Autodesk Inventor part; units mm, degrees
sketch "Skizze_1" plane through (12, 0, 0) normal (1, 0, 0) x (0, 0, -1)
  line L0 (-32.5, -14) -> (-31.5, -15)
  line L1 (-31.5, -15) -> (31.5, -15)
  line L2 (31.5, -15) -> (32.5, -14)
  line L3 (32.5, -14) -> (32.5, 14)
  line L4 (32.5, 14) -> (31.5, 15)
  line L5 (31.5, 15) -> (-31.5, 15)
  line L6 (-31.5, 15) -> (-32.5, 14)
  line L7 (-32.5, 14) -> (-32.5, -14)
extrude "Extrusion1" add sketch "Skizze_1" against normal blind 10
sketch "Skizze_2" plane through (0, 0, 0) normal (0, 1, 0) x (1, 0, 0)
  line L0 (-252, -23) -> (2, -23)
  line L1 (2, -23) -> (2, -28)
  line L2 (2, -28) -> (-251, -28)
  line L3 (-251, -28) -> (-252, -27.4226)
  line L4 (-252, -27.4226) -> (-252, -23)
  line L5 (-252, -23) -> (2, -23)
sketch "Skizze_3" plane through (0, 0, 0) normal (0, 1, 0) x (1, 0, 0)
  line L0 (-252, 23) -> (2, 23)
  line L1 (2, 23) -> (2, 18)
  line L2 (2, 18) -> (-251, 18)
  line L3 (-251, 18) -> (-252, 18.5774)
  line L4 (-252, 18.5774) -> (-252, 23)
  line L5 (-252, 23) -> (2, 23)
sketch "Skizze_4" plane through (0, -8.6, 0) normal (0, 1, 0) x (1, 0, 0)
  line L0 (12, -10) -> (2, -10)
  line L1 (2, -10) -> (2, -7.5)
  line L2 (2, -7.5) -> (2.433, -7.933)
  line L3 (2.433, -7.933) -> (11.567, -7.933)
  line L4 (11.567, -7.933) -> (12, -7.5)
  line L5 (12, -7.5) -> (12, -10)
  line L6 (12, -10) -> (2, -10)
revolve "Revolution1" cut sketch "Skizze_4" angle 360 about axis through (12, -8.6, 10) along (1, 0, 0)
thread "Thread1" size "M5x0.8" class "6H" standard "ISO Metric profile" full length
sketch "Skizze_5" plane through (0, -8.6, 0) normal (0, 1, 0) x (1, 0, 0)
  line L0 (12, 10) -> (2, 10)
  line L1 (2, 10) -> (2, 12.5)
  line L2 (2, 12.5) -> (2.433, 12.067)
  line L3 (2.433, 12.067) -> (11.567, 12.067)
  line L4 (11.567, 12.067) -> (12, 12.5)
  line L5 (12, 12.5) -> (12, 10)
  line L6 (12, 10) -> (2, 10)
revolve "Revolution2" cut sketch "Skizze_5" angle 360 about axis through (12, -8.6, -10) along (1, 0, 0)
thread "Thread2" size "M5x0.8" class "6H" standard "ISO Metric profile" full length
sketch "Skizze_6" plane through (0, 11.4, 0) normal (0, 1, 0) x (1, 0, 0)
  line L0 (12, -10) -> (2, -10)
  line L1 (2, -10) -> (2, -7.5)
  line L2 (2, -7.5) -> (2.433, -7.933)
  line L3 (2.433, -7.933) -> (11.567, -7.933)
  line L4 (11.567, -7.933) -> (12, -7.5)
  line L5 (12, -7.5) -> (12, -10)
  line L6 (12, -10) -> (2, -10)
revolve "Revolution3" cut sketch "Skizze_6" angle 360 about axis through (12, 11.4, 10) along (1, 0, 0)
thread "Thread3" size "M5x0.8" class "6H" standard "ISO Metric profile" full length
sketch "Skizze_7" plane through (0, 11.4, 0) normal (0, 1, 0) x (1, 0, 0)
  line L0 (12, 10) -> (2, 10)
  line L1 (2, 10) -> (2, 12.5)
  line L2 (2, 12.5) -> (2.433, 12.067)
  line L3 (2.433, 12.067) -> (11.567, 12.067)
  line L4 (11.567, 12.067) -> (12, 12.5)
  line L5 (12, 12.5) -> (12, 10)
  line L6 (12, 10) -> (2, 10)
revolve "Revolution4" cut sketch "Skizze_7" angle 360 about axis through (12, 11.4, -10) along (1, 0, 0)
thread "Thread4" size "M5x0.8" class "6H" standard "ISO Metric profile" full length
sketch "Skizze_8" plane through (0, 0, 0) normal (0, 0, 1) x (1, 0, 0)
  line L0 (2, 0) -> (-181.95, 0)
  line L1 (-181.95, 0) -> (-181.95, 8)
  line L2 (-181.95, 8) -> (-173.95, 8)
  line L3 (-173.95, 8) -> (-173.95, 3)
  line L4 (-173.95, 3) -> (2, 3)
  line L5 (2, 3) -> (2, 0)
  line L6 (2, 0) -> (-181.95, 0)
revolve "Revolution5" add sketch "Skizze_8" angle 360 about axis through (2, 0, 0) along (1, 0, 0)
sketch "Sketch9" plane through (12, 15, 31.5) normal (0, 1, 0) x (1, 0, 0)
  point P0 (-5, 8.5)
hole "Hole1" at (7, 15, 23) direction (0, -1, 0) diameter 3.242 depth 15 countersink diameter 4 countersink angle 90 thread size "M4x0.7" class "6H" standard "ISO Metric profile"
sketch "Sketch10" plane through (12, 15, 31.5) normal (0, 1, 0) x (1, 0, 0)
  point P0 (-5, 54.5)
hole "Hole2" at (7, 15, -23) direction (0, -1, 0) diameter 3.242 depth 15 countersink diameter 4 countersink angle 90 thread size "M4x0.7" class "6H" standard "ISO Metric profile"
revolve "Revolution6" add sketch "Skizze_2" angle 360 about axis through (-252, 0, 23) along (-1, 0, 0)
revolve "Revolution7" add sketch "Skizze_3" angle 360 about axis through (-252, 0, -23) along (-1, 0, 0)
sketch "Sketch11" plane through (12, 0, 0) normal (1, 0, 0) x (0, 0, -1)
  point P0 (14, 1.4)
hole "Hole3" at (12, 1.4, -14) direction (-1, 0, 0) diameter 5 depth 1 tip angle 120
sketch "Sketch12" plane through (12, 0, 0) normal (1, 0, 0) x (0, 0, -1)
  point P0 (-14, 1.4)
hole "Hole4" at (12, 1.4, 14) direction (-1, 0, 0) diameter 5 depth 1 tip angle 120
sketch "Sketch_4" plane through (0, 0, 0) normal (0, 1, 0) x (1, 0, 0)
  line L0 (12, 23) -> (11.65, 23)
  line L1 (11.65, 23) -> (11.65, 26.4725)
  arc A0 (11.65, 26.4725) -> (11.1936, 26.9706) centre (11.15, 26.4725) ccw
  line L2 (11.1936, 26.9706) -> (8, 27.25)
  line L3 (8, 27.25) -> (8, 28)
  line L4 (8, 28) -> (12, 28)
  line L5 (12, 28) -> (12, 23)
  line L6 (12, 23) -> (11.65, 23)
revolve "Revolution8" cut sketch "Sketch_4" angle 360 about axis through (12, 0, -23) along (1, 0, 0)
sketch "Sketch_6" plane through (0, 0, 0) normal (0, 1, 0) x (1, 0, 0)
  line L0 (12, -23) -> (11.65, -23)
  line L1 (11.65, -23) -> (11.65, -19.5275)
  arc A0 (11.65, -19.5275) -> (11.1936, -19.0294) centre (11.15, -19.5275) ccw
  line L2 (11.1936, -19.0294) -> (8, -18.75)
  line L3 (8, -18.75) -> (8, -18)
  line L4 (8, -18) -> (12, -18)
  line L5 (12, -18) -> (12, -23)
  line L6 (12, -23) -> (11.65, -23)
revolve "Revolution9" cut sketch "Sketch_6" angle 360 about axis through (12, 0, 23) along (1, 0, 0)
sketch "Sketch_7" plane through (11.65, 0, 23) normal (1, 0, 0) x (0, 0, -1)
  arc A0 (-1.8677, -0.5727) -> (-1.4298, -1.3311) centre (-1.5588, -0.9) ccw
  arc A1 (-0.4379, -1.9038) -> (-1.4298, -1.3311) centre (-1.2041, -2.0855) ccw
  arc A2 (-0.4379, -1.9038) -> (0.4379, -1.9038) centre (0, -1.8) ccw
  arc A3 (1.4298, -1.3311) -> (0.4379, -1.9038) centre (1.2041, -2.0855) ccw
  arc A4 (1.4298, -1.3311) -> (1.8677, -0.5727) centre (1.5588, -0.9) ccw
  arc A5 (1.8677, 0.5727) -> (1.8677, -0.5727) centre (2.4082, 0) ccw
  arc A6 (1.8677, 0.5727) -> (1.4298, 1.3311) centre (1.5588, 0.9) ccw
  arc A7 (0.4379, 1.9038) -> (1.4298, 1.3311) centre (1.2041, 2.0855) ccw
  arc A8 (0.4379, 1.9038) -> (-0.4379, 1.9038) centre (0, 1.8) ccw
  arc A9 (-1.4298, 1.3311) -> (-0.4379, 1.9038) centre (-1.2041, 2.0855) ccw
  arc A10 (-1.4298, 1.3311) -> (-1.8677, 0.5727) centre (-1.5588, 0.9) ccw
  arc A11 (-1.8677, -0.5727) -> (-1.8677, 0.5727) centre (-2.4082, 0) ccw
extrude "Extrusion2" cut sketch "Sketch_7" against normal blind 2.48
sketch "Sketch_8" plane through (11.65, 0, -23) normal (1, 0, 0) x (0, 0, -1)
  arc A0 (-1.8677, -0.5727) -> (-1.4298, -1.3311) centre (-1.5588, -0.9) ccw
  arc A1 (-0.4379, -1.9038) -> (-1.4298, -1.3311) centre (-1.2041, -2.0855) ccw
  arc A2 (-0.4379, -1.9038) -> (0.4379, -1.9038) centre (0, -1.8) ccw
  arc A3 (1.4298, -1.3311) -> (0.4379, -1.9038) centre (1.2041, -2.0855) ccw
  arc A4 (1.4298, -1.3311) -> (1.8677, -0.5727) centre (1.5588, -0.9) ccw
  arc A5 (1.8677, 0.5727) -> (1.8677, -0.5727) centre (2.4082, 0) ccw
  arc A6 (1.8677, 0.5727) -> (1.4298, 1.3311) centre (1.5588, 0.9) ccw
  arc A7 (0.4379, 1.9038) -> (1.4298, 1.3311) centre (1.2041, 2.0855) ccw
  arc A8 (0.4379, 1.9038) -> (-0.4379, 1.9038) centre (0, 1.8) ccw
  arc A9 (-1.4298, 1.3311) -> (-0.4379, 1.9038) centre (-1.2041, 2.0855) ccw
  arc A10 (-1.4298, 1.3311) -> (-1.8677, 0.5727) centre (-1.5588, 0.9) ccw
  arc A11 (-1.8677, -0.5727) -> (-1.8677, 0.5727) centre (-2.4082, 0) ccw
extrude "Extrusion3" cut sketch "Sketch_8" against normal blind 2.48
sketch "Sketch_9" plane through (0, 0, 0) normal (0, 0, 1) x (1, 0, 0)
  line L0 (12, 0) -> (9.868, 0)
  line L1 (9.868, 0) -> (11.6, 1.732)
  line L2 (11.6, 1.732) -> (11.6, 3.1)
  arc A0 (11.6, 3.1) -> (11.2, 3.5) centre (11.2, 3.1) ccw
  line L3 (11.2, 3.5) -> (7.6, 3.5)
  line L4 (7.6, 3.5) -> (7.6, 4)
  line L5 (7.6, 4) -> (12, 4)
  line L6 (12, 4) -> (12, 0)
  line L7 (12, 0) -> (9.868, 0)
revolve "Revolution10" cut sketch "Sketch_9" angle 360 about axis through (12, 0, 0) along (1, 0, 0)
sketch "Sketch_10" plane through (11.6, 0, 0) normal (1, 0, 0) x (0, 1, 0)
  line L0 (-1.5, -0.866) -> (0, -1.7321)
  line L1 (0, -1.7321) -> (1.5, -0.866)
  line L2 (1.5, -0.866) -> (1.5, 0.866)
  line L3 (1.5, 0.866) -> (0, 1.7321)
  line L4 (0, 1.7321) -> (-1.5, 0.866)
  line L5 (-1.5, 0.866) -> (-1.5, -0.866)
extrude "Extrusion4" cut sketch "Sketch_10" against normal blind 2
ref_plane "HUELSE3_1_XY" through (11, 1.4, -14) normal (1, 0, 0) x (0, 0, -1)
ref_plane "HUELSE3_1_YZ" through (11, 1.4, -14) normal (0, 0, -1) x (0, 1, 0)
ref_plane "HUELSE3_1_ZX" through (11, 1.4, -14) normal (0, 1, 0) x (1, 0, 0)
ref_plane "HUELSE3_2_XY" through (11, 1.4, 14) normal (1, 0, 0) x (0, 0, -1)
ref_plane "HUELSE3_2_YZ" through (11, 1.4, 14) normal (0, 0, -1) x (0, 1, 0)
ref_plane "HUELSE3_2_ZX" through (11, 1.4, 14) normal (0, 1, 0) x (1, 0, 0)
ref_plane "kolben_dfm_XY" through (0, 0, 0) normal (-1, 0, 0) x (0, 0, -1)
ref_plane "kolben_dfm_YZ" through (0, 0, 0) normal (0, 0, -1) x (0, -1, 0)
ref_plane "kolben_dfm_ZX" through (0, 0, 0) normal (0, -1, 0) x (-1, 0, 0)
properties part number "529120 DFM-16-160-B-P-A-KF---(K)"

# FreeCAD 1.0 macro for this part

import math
import FreeCAD as App
import Part
import Sketcher
from FreeCAD import Vector
Q = App.Units.Quantity


def add_polygon(sketch, points):
    """Adds a closed chain of lines whose ends are joined by coincident constraints."""
    first, n = sketch.GeometryCount, len(points)
    for a, b in zip(points, points[1:] + points[:1]):
        sketch.addGeometry(Part.LineSegment(App.Vector(*a, 0), App.Vector(*b, 0)), False)
    for i in range(n):
        sketch.addConstraint(Sketcher.Constraint("Coincident", first + i, 2, first + (i + 1) % n, 1))

doc = App.newDocument("Part")
params = doc.addObject("Spreadsheet::Sheet", "Params")
for row, (alias, value) in enumerate([
    ("sketch1_width", "28 mm"),
    ("sketch1_height", "63 mm"),
    ("pad1_length", "10 mm"),
    ("sketch2_width", "10 mm"),
    ("sketch2_height", "2.5 mm"),
    ("groove_angle", "360 deg"),
    ("sketch3_width", "10 mm"),
    ("sketch3_height", "2.5 mm"),
    ("groove2_angle", "360 deg"),
    ("sketch4_width", "10 mm"),
    ("sketch4_height", "2.5 mm"),
    ("groove3_angle", "360 deg"),
    ("sketch5_width", "10 mm"),
    ("sketch5_height", "2.5 mm"),
    ("groove4_angle", "360 deg"),
    ("sketch6_width", "8 mm"),
    ("sketch6_height", "3 mm"),
    ("sketch6_width2", "183.95 mm"),
    ("revolution_angle", "360 deg"),
    ("hole_diameter", "3.242 mm"),
    ("hole_depth", "15 mm"),
    ("hole_csink_diameter", "4 mm"),
    ("hole2_diameter", "3.242 mm"),
    ("hole2_depth", "15 mm"),
    ("hole2_csink_diameter", "4 mm"),
    ("sketch9_width", "254 mm"),
    ("sketch9_width2", "253 mm"),
    ("sketch9_height", "5 mm"),
    ("revolution2_angle", "360 deg"),
    ("sketch10_width", "254 mm"),
    ("sketch10_width2", "253 mm"),
    ("sketch10_height", "5 mm"),
    ("revolution3_angle", "360 deg"),
    ("sketch11_diameter", "5 mm"),
    ("hole3_diameter", "5 mm"),
    ("hole3_depth", "1 mm"),
    ("sketch12_diameter", "5 mm"),
    ("hole4_diameter", "5 mm"),
    ("hole4_depth", "1 mm"),
    ("sketch13_radius", "0.5 mm"),
    ("sketch13_width", "4 mm"),
    ("sketch13_height", "5 mm"),
    ("sketch13_width2", "0.35 mm"),
    ("sketch13_height2", "0.75 mm"),
    ("groove5_angle", "360 deg"),
    ("sketch14_radius", "0.5 mm"),
    ("sketch14_width", "4 mm"),
    ("sketch14_height", "5 mm"),
    ("sketch14_width2", "0.35 mm"),
    ("sketch14_height2", "0.75 mm"),
    ("groove6_angle", "360 deg"),
    ("sketch15_radius", "0.45 mm"),
    ("pocket1_length", "2.48 mm"),
    ("sketch16_radius", "0.45 mm"),
    ("pocket2_length", "2.48 mm"),
    ("sketch17_radius", "0.4 mm"),
    ("sketch17_height", "4 mm"),
    ("sketch17_width", "4.4 mm"),
    ("sketch17_width2", "3.6 mm"),
    ("sketch17_height2", "0.5 mm"),
    ("groove7_angle", "360 deg"),
    ("pocket3_length", "2 mm"),
], start=1):
    params.set(f"A{row}", alias)
    params.set(f"B{row}", "=" + value)
    params.setAlias(f"B{row}", alias)

body = doc.addObject("PartDesign::Body", "Body")

# Sketch on YZ plane
sketch1 = body.newObject("Sketcher::SketchObject", "Sketch")
sketch1.AttachmentSupport = (doc.getObject("YZ_Plane"), [""])
sketch1.MapMode = "FlatFace"
sketch1.AttachmentOffset = App.Placement(Vector(0, 0, 12), App.Rotation())
add_polygon(sketch1, [(14, 32.5), (-14, 32.5), (-15, 31.5), (-15, -31.5), (-14, -32.5), (14, -32.5), (15, -31.5), (15, 31.5)])  # lines 0-7
sketch1.addConstraint([
    Sketcher.Constraint("Horizontal", 0),
    Sketcher.Constraint("Vertical", 2),
    Sketcher.Constraint("Horizontal", 4),
    Sketcher.Constraint("Vertical", 6),
    Sketcher.Constraint("Symmetric", 0, 2, 4, 2, -1, 1),
    Sketcher.Constraint("Symmetric", 1, 2, 5, 2, -1, 1),
    Sketcher.Constraint("Perpendicular", 1, 3),
    Sketcher.Constraint("Perpendicular", 5, 7),
    Sketcher.Constraint("Horizontal", 2, 2, 5, 2),
    Sketcher.Constraint("Horizontal", 1, 2, 6, 2),
    Sketcher.Constraint("Vertical", 0, 2, 3, 2),
    Sketcher.Constraint("DistanceX", 0, 2, 0, 1, Q("28 mm")),
    Sketcher.Constraint("DistanceY", 2, 2, 2, 1, Q("63 mm")),
    Sketcher.Constraint("DistanceX", 1, 2, -1, 1, Q("15 mm")),
])
sketch1.setExpression("Constraints[19]", "Params.sketch1_width")
sketch1.setExpression("Constraints[20]", "Params.sketch1_height")
pad1 = body.newObject("PartDesign::Pad", "Pad")
pad1.Profile = sketch1
pad1.setExpression("Length", "Params.pad1_length")
pad1.Reversed = True

# Sketch on XZ plane
sketch2 = body.newObject("Sketcher::SketchObject", "Sketch001")
sketch2.AttachmentSupport = (doc.getObject("XZ_Plane"), [""])
sketch2.MapMode = "FlatFace"
sketch2.AttachmentOffset = App.Placement(Vector(0, 0, 8.6), App.Rotation())
add_polygon(sketch2, [(2, 10), (12, 10), (12, 7.5), (11.6, 7.9), (2.4, 7.9), (2, 7.5)])  # lines 0-5
sketch2.addGeometry(Part.LineSegment(Vector(2, 10, 0), Vector(12, 10, 0)), True)  # axis
sketch2.addConstraint([
    Sketcher.Constraint("Horizontal", 0),
    Sketcher.Constraint("Vertical", 1),
    Sketcher.Constraint("Horizontal", 3),
    Sketcher.Constraint("Vertical", 5),
    Sketcher.Constraint("Horizontal", 6),
    Sketcher.Constraint("Coincident", 6, 1, 5, 2),
    Sketcher.Constraint("Perpendicular", 2, 4),
    Sketcher.Constraint("Horizontal", 1, 2, 4, 2),
    Sketcher.Constraint("Vertical", 1, 2, 6, 2),
    Sketcher.Constraint("Equal", 2, 4),
    Sketcher.Constraint("DistanceX", 0, 1, 0, 2, Q("10 mm")),
    Sketcher.Constraint("DistanceY", 1, 2, 1, 1, Q("2.5 mm")),
    Sketcher.Constraint("DistanceX", -1, 1, 0, 2, Q("12 mm")),
    Sketcher.Constraint("DistanceY", -1, 1, 0, 2, Q("10 mm")),
    Sketcher.Constraint("DistanceX", 3, 2, 3, 1, Q("9.134 mm")),
])
sketch2.setExpression("Constraints[16]", "Params.sketch2_width")
sketch2.setExpression("Constraints[17]", "Params.sketch2_height")
groove = body.newObject("PartDesign::Groove", "Groove")
groove.Profile = sketch2
groove.ReferenceAxis = (sketch2, ["Axis0"])
groove.setExpression("Angle", "Params.groove_angle")

# Sketch on XZ plane
sketch3 = body.newObject("Sketcher::SketchObject", "Sketch002")
sketch3.AttachmentSupport = (doc.getObject("XZ_Plane"), [""])
sketch3.MapMode = "FlatFace"
sketch3.AttachmentOffset = App.Placement(Vector(0, 0, 8.6), App.Rotation())
add_polygon(sketch3, [(2, -10), (12, -10), (12, -12.5), (11.6, -12.1), (2.4, -12.1), (2, -12.5)])  # lines 0-5
sketch3.addGeometry(Part.LineSegment(Vector(2, -10, 0), Vector(12, -10, 0)), True)  # axis
sketch3.addConstraint([
    Sketcher.Constraint("Horizontal", 0),
    Sketcher.Constraint("Vertical", 1),
    Sketcher.Constraint("Horizontal", 3),
    Sketcher.Constraint("Vertical", 5),
    Sketcher.Constraint("Horizontal", 6),
    Sketcher.Constraint("Coincident", 6, 1, 5, 2),
    Sketcher.Constraint("Perpendicular", 2, 4),
    Sketcher.Constraint("Horizontal", 1, 2, 4, 2),
    Sketcher.Constraint("Vertical", 1, 2, 6, 2),
    Sketcher.Constraint("Equal", 2, 4),
    Sketcher.Constraint("DistanceX", 0, 1, 0, 2, Q("10 mm")),
    Sketcher.Constraint("DistanceY", 1, 2, 1, 1, Q("2.5 mm")),
    Sketcher.Constraint("DistanceX", -1, 1, 0, 2, Q("12 mm")),
    Sketcher.Constraint("DistanceY", 0, 2, -1, 1, Q("10 mm")),
    Sketcher.Constraint("DistanceX", 3, 2, 3, 1, Q("9.134 mm")),
])
sketch3.setExpression("Constraints[16]", "Params.sketch3_width")
sketch3.setExpression("Constraints[17]", "Params.sketch3_height")
groove2 = body.newObject("PartDesign::Groove", "Groove001")
groove2.Profile = sketch3
groove2.ReferenceAxis = (sketch3, ["Axis0"])
groove2.setExpression("Angle", "Params.groove2_angle")

# Sketch on XZ plane
sketch4 = body.newObject("Sketcher::SketchObject", "Sketch003")
sketch4.AttachmentSupport = (doc.getObject("XZ_Plane"), [""])
sketch4.MapMode = "FlatFace"
sketch4.AttachmentOffset = App.Placement(Vector(0, 0, -11.4), App.Rotation())
add_polygon(sketch4, [(2, 10), (12, 10), (12, 7.5), (11.6, 7.9), (2.4, 7.9), (2, 7.5)])  # lines 0-5
sketch4.addGeometry(Part.LineSegment(Vector(2, 10, 0), Vector(12, 10, 0)), True)  # axis
sketch4.addConstraint([
    Sketcher.Constraint("Horizontal", 0),
    Sketcher.Constraint("Vertical", 1),
    Sketcher.Constraint("Horizontal", 3),
    Sketcher.Constraint("Vertical", 5),
    Sketcher.Constraint("Horizontal", 6),
    Sketcher.Constraint("Coincident", 6, 1, 5, 2),
    Sketcher.Constraint("Perpendicular", 2, 4),
    Sketcher.Constraint("Horizontal", 1, 2, 4, 2),
    Sketcher.Constraint("Vertical", 1, 2, 6, 2),
    Sketcher.Constraint("Equal", 2, 4),
    Sketcher.Constraint("DistanceX", 0, 1, 0, 2, Q("10 mm")),
    Sketcher.Constraint("DistanceY", 1, 2, 1, 1, Q("2.5 mm")),
    Sketcher.Constraint("DistanceX", -1, 1, 0, 2, Q("12 mm")),
    Sketcher.Constraint("DistanceY", -1, 1, 0, 2, Q("10 mm")),
    Sketcher.Constraint("DistanceX", 3, 2, 3, 1, Q("9.134 mm")),
])
sketch4.setExpression("Constraints[16]", "Params.sketch4_width")
sketch4.setExpression("Constraints[17]", "Params.sketch4_height")
groove3 = body.newObject("PartDesign::Groove", "Groove002")
groove3.Profile = sketch4
groove3.ReferenceAxis = (sketch4, ["Axis0"])
groove3.setExpression("Angle", "Params.groove3_angle")

# Sketch on XZ plane
sketch5 = body.newObject("Sketcher::SketchObject", "Sketch004")
sketch5.AttachmentSupport = (doc.getObject("XZ_Plane"), [""])
sketch5.MapMode = "FlatFace"
sketch5.AttachmentOffset = App.Placement(Vector(0, 0, -11.4), App.Rotation())
add_polygon(sketch5, [(2, -10), (12, -10), (12, -12.5), (11.6, -12.1), (2.4, -12.1), (2, -12.5)])  # lines 0-5
sketch5.addGeometry(Part.LineSegment(Vector(2, -10, 0), Vector(12, -10, 0)), True)  # axis
sketch5.addConstraint([
    Sketcher.Constraint("Horizontal", 0),
    Sketcher.Constraint("Vertical", 1),
    Sketcher.Constraint("Horizontal", 3),
    Sketcher.Constraint("Vertical", 5),
    Sketcher.Constraint("Horizontal", 6),
    Sketcher.Constraint("Coincident", 6, 1, 5, 2),
    Sketcher.Constraint("Perpendicular", 2, 4),
    Sketcher.Constraint("Horizontal", 1, 2, 4, 2),
    Sketcher.Constraint("Vertical", 1, 2, 6, 2),
    Sketcher.Constraint("Equal", 2, 4),
    Sketcher.Constraint("DistanceX", 0, 1, 0, 2, Q("10 mm")),
    Sketcher.Constraint("DistanceY", 1, 2, 1, 1, Q("2.5 mm")),
    Sketcher.Constraint("DistanceX", -1, 1, 0, 2, Q("12 mm")),
    Sketcher.Constraint("DistanceY", 0, 2, -1, 1, Q("10 mm")),
    Sketcher.Constraint("DistanceX", 3, 2, 3, 1, Q("9.134 mm")),
])
sketch5.setExpression("Constraints[16]", "Params.sketch5_width")
sketch5.setExpression("Constraints[17]", "Params.sketch5_height")
groove4 = body.newObject("PartDesign::Groove", "Groove003")
groove4.Profile = sketch5
groove4.ReferenceAxis = (sketch5, ["Axis0"])
groove4.setExpression("Angle", "Params.groove4_angle")

# Sketch on XY plane
sketch6 = body.newObject("Sketcher::SketchObject", "Sketch005")
sketch6.AttachmentSupport = (doc.getObject("XY_Plane"), [""])
sketch6.MapMode = "FlatFace"
add_polygon(sketch6, [(-181.9, 0), (2, 0), (2, 3), (-173.9, 3), (-173.9, 8), (-181.9, 8)])  # lines 0-5
sketch6.addConstraint([
    Sketcher.Constraint("Horizontal", 0),
    Sketcher.Constraint("Vertical", 1),
    Sketcher.Constraint("Horizontal", 2),
    Sketcher.Constraint("Vertical", 3),
    Sketcher.Constraint("Horizontal", 4),
    Sketcher.Constraint("Vertical", 5),
    Sketcher.Constraint("PointOnObject", 0, 2, -1),
    Sketcher.Constraint("Equal", 4, 5),
    Sketcher.Constraint("DistanceX", 4, 2, 4, 1, Q("8 mm")),
    Sketcher.Constraint("DistanceY", 1, 1, 1, 2, Q("3 mm")),
    Sketcher.Constraint("DistanceX", -1, 1, 0, 2, Q("2 mm")),
    Sketcher.Constraint("DistanceX", 0, 1, 0, 2, Q("183.95 mm")),
])
sketch6.setExpression("Constraints[14]", "Params.sketch6_width")
sketch6.setExpression("Constraints[15]", "Params.sketch6_height")
sketch6.setExpression("Constraints[17]", "Params.sketch6_width2")
revolution = body.newObject("PartDesign::Revolution", "Revolution")
revolution.Profile = sketch6
revolution.ReferenceAxis = (sketch6, ["H_Axis"])
revolution.setExpression("Angle", "Params.revolution_angle")

# Sketch on XZ plane
sketch7 = body.newObject("Sketcher::SketchObject", "Sketch006")
sketch7.AttachmentSupport = (doc.getObject("XZ_Plane"), [""])
sketch7.MapMode = "FlatFace"
sketch7.AttachmentOffset = App.Placement(Vector(0, 0, -15), App.Rotation())
sketch7.addGeometry(Part.Circle(Vector(7, 23, 0), Vector(0, 0, 1), 1.6), False)
sketch7.addConstraint([
    Sketcher.Constraint("Diameter", 0, Q("3.242 mm")),
    Sketcher.Constraint("DistanceX", -1, 1, 0, 3, Q("7 mm")),
    Sketcher.Constraint("DistanceY", -1, 1, 0, 3, Q("23 mm")),
])
doc.recompute()
hole = body.newObject("PartDesign::Hole", "Hole")
hole.Profile = sketch7
hole.ThreadType = "None"
hole.setExpression("Diameter", "Params.hole_diameter")
hole.DepthType = "Dimension"
hole.setExpression("Depth", "Params.hole_depth")
hole.DrillPoint = "Flat"
hole.HoleCutType = "Countersink"
hole.setExpression("HoleCutDiameter", "Params.hole_csink_diameter")
hole.HoleCutCountersinkAngle = 90
hole.Reversed = True

# Sketch on XZ plane
sketch8 = body.newObject("Sketcher::SketchObject", "Sketch007")
sketch8.AttachmentSupport = (doc.getObject("XZ_Plane"), [""])
sketch8.MapMode = "FlatFace"
sketch8.AttachmentOffset = App.Placement(Vector(0, 0, -15), App.Rotation())
sketch8.addGeometry(Part.Circle(Vector(7, -23, 0), Vector(0, 0, 1), 1.6), False)
sketch8.addConstraint([
    Sketcher.Constraint("Diameter", 0, Q("3.242 mm")),
    Sketcher.Constraint("DistanceX", -1, 1, 0, 3, Q("7 mm")),
    Sketcher.Constraint("DistanceY", 0, 3, -1, 1, Q("23 mm")),
])
doc.recompute()
hole2 = body.newObject("PartDesign::Hole", "Hole001")
hole2.Profile = sketch8
hole2.ThreadType = "None"
hole2.setExpression("Diameter", "Params.hole2_diameter")
hole2.DepthType = "Dimension"
hole2.setExpression("Depth", "Params.hole2_depth")
hole2.DrillPoint = "Flat"
hole2.HoleCutType = "Countersink"
hole2.setExpression("HoleCutDiameter", "Params.hole2_csink_diameter")
hole2.HoleCutCountersinkAngle = 90
hole2.Reversed = True

# Sketch on XZ plane
sketch9 = body.newObject("Sketcher::SketchObject", "Sketch008")
sketch9.AttachmentSupport = (doc.getObject("XZ_Plane"), [""])
sketch9.MapMode = "FlatFace"
add_polygon(sketch9, [(2, 23), (-252, 23), (-252, 27.4), (-251, 28), (2, 28)])  # lines 0-4
sketch9.addGeometry(Part.LineSegment(Vector(2, 23, 0), Vector(-252, 23, 0)), True)  # axis
sketch9.addConstraint([
    Sketcher.Constraint("Horizontal", 0),
    Sketcher.Constraint("Vertical", 1),
    Sketcher.Constraint("Horizontal", 3),
    Sketcher.Constraint("Vertical", 4),
    Sketcher.Constraint("Horizontal", 5),
    Sketcher.Constraint("Coincident", 5, 1, 4, 2),
    Sketcher.Constraint("Vertical", 1, 2, 5, 2),
    Sketcher.Constraint("DistanceX", 0, 2, 0, 1, Q("254 mm")),
    Sketcher.Constraint("DistanceX", 3, 1, 3, 2, Q("253 mm")),
    Sketcher.Constraint("DistanceY", 4, 2, 4, 1, Q("5 mm")),
    Sketcher.Constraint("DistanceX", 0, 2, -1, 1, Q("252 mm")),
    Sketcher.Constraint("DistanceY", -1, 1, 0, 2, Q("23 mm")),
    Sketcher.Constraint("DistanceY", 1, 1, 1, 2, Q("4.4226 mm")),
])
sketch9.setExpression("Constraints[12]", "Params.sketch9_width")
sketch9.setExpression("Constraints[13]", "Params.sketch9_width2")
sketch9.setExpression("Constraints[14]", "Params.sketch9_height")
revolution2 = body.newObject("PartDesign::Revolution", "Revolution001")
revolution2.Profile = sketch9
revolution2.ReferenceAxis = (sketch9, ["Axis0"])
revolution2.setExpression("Angle", "Params.revolution2_angle")

# Sketch on XZ plane
sketch10 = body.newObject("Sketcher::SketchObject", "Sketch009")
sketch10.AttachmentSupport = (doc.getObject("XZ_Plane"), [""])
sketch10.MapMode = "FlatFace"
add_polygon(sketch10, [(2, -23), (-252, -23), (-252, -18.6), (-251, -18), (2, -18)])  # lines 0-4
sketch10.addGeometry(Part.LineSegment(Vector(2, -23, 0), Vector(-252, -23, 0)), True)  # axis
sketch10.addConstraint([
    Sketcher.Constraint("Horizontal", 0),
    Sketcher.Constraint("Vertical", 1),
    Sketcher.Constraint("Horizontal", 3),
    Sketcher.Constraint("Vertical", 4),
    Sketcher.Constraint("Horizontal", 5),
    Sketcher.Constraint("Coincident", 5, 1, 4, 2),
    Sketcher.Constraint("Vertical", 1, 2, 5, 2),
    Sketcher.Constraint("DistanceX", 0, 2, 0, 1, Q("254 mm")),
    Sketcher.Constraint("DistanceX", 3, 1, 3, 2, Q("253 mm")),
    Sketcher.Constraint("DistanceY", 4, 2, 4, 1, Q("5 mm")),
    Sketcher.Constraint("DistanceX", 0, 2, -1, 1, Q("252 mm")),
    Sketcher.Constraint("DistanceY", 0, 2, -1, 1, Q("23 mm")),
    Sketcher.Constraint("DistanceY", 1, 1, 1, 2, Q("4.4226 mm")),
])
sketch10.setExpression("Constraints[12]", "Params.sketch10_width")
sketch10.setExpression("Constraints[13]", "Params.sketch10_width2")
sketch10.setExpression("Constraints[14]", "Params.sketch10_height")
revolution3 = body.newObject("PartDesign::Revolution", "Revolution002")
revolution3.Profile = sketch10
revolution3.ReferenceAxis = (sketch10, ["Axis0"])
revolution3.setExpression("Angle", "Params.revolution3_angle")

# Sketch on YZ plane
sketch11 = body.newObject("Sketcher::SketchObject", "Sketch010")
sketch11.AttachmentSupport = (doc.getObject("YZ_Plane"), [""])
sketch11.MapMode = "FlatFace"
sketch11.AttachmentOffset = App.Placement(Vector(0, 0, 12), App.Rotation())
sketch11.addGeometry(Part.Circle(Vector(1.4, -14, 0), Vector(0, 0, 1), 2.5), False)
sketch11.addConstraint([
    Sketcher.Constraint("Diameter", 0, Q("5 mm")),
    Sketcher.Constraint("DistanceY", 0, 3, -1, 1, Q("14 mm")),
    Sketcher.Constraint("DistanceX", -1, 1, 0, 3, Q("1.4 mm")),
])
sketch11.setExpression("Constraints[0]", "Params.sketch11_diameter")
doc.recompute()
hole3 = body.newObject("PartDesign::Hole", "Hole002")
hole3.Profile = sketch11
hole3.ThreadType = "None"
hole3.setExpression("Diameter", "Params.hole3_diameter")
hole3.DepthType = "Dimension"
hole3.setExpression("Depth", "Params.hole3_depth")
hole3.DrillPoint = "Angled"
hole3.DrillPointAngle = 120

# Sketch on YZ plane
sketch12 = body.newObject("Sketcher::SketchObject", "Sketch011")
sketch12.AttachmentSupport = (doc.getObject("YZ_Plane"), [""])
sketch12.MapMode = "FlatFace"
sketch12.AttachmentOffset = App.Placement(Vector(0, 0, 12), App.Rotation())
sketch12.addGeometry(Part.Circle(Vector(1.4, 14, 0), Vector(0, 0, 1), 2.5), False)
sketch12.addConstraint([
    Sketcher.Constraint("Diameter", 0, Q("5 mm")),
    Sketcher.Constraint("DistanceY", -1, 1, 0, 3, Q("14 mm")),
    Sketcher.Constraint("DistanceX", -1, 1, 0, 3, Q("1.4 mm")),
])
sketch12.setExpression("Constraints[0]", "Params.sketch12_diameter")
doc.recompute()
hole4 = body.newObject("PartDesign::Hole", "Hole003")
hole4.Profile = sketch12
hole4.ThreadType = "None"
hole4.setExpression("Diameter", "Params.hole4_diameter")
hole4.DepthType = "Dimension"
hole4.setExpression("Depth", "Params.hole4_depth")
hole4.DrillPoint = "Angled"
hole4.DrillPointAngle = 120

# Sketch on XZ plane
sketch13 = body.newObject("Sketcher::SketchObject", "Sketch012")
sketch13.AttachmentSupport = (doc.getObject("XZ_Plane"), [""])
sketch13.MapMode = "FlatFace"
sketch13.addGeometry([
    Part.LineSegment(Vector(11.65, -23, 0), Vector(12, -23, 0)),  # 0
    Part.LineSegment(Vector(12, -23, 0), Vector(12, -28, 0)),  # 1
    Part.LineSegment(Vector(12, -28, 0), Vector(8, -28, 0)),  # 2
    Part.LineSegment(Vector(8, -28, 0), Vector(8, -27.25, 0)),  # 3
    Part.LineSegment(Vector(8, -27.25, 0), Vector(11.19, -26.97, 0)),  # 4
    Part.ArcOfCircle(Part.Circle(Vector(11.15, -26.47, 0), Vector(0, 0, 1), 0.5), math.radians(-85), math.radians(0)),  # 5
    Part.LineSegment(Vector(11.65, -26.47, 0), Vector(11.65, -23, 0)),  # 6
], False)
sketch13.addGeometry(Part.LineSegment(Vector(8, -23, 0), Vector(12, -23, 0)), True)  # axis
sketch13.addConstraint([
    Sketcher.Constraint("Coincident", 0, 2, 1, 1),
    Sketcher.Constraint("Coincident", 1, 2, 2, 1),
    Sketcher.Constraint("Coincident", 2, 2, 3, 1),
    Sketcher.Constraint("Coincident", 3, 2, 4, 1),
    Sketcher.Constraint("Tangent", 4, 2, 5, 1),
    Sketcher.Constraint("Tangent", 5, 2, 6, 1),
    Sketcher.Constraint("Coincident", 6, 2, 0, 1),
    Sketcher.Constraint("Horizontal", 0),
    Sketcher.Constraint("Vertical", 1),
    Sketcher.Constraint("Horizontal", 2),
    Sketcher.Constraint("Vertical", 3),
    Sketcher.Constraint("Vertical", 6),
    Sketcher.Constraint("Horizontal", 7),
    Sketcher.Constraint("Coincident", 7, 2, 0, 2),
    Sketcher.Constraint("Vertical", 3, 2, 7, 1),
    Sketcher.Constraint("Radius", 5, Q("0.5 mm")),
    Sketcher.Constraint("DistanceX", 2, 2, 2, 1, Q("4 mm")),
    Sketcher.Constraint("DistanceY", 1, 2, 1, 1, Q("5 mm")),
    Sketcher.Constraint("Angle", 4, Q("5 deg")),
    Sketcher.Constraint("DistanceX", -1, 1, 0, 2, Q("12 mm")),
    Sketcher.Constraint("DistanceY", 0, 2, -1, 1, Q("23 mm")),
    Sketcher.Constraint("DistanceX", 0, 1, 0, 2, Q("0.35 mm")),
    Sketcher.Constraint("DistanceY", 3, 1, 3, 2, Q("0.75 mm")),
])
sketch13.setExpression("Constraints[15]", "Params.sketch13_radius")
sketch13.setExpression("Constraints[16]", "Params.sketch13_width")
sketch13.setExpression("Constraints[17]", "Params.sketch13_height")
sketch13.setExpression("Constraints[21]", "Params.sketch13_width2")
sketch13.setExpression("Constraints[22]", "Params.sketch13_height2")
groove5 = body.newObject("PartDesign::Groove", "Groove004")
groove5.Profile = sketch13
groove5.ReferenceAxis = (sketch13, ["Axis0"])
groove5.setExpression("Angle", "Params.groove5_angle")

# Sketch on XZ plane
sketch14 = body.newObject("Sketcher::SketchObject", "Sketch013")
sketch14.AttachmentSupport = (doc.getObject("XZ_Plane"), [""])
sketch14.MapMode = "FlatFace"
sketch14.addGeometry([
    Part.LineSegment(Vector(11.65, 23, 0), Vector(12, 23, 0)),  # 0
    Part.LineSegment(Vector(12, 23, 0), Vector(12, 18, 0)),  # 1
    Part.LineSegment(Vector(12, 18, 0), Vector(8, 18, 0)),  # 2
    Part.LineSegment(Vector(8, 18, 0), Vector(8, 18.75, 0)),  # 3
    Part.LineSegment(Vector(8, 18.75, 0), Vector(11.19, 19.03, 0)),  # 4
    Part.ArcOfCircle(Part.Circle(Vector(11.15, 19.53, 0), Vector(0, 0, 1), 0.5), math.radians(-85), math.radians(0)),  # 5
    Part.LineSegment(Vector(11.65, 19.53, 0), Vector(11.65, 23, 0)),  # 6
], False)
sketch14.addGeometry(Part.LineSegment(Vector(8, 23, 0), Vector(12, 23, 0)), True)  # axis
sketch14.addConstraint([
    Sketcher.Constraint("Coincident", 0, 2, 1, 1),
    Sketcher.Constraint("Coincident", 1, 2, 2, 1),
    Sketcher.Constraint("Coincident", 2, 2, 3, 1),
    Sketcher.Constraint("Coincident", 3, 2, 4, 1),
    Sketcher.Constraint("Tangent", 4, 2, 5, 1),
    Sketcher.Constraint("Tangent", 5, 2, 6, 1),
    Sketcher.Constraint("Coincident", 6, 2, 0, 1),
    Sketcher.Constraint("Horizontal", 0),
    Sketcher.Constraint("Vertical", 1),
    Sketcher.Constraint("Horizontal", 2),
    Sketcher.Constraint("Vertical", 3),
    Sketcher.Constraint("Vertical", 6),
    Sketcher.Constraint("Horizontal", 7),
    Sketcher.Constraint("Coincident", 7, 2, 0, 2),
    Sketcher.Constraint("Vertical", 3, 2, 7, 1),
    Sketcher.Constraint("Radius", 5, Q("0.5 mm")),
    Sketcher.Constraint("DistanceX", 2, 2, 2, 1, Q("4 mm")),
    Sketcher.Constraint("DistanceY", 1, 2, 1, 1, Q("5 mm")),
    Sketcher.Constraint("Angle", 4, Q("5 deg")),
    Sketcher.Constraint("DistanceX", -1, 1, 0, 2, Q("12 mm")),
    Sketcher.Constraint("DistanceY", -1, 1, 0, 2, Q("23 mm")),
    Sketcher.Constraint("DistanceX", 0, 1, 0, 2, Q("0.35 mm")),
    Sketcher.Constraint("DistanceY", 3, 1, 3, 2, Q("0.75 mm")),
])
sketch14.setExpression("Constraints[15]", "Params.sketch14_radius")
sketch14.setExpression("Constraints[16]", "Params.sketch14_width")
sketch14.setExpression("Constraints[17]", "Params.sketch14_height")
sketch14.setExpression("Constraints[21]", "Params.sketch14_width2")
sketch14.setExpression("Constraints[22]", "Params.sketch14_height2")
groove6 = body.newObject("PartDesign::Groove", "Groove005")
groove6.Profile = sketch14
groove6.ReferenceAxis = (sketch14, ["Axis0"])
groove6.setExpression("Angle", "Params.groove6_angle")

# Sketch on YZ plane
sketch15 = body.newObject("Sketcher::SketchObject", "Sketch014")
sketch15.AttachmentSupport = (doc.getObject("YZ_Plane"), [""])
sketch15.MapMode = "FlatFace"
sketch15.AttachmentOffset = App.Placement(Vector(0, 0, 11.65), App.Rotation())
sketch15.addGeometry([
    Part.ArcOfCircle(Part.Circle(Vector(0, 25.41, 0), Vector(0, 0, 1), 0.79), math.radians(-137), math.radians(-43)),  # 0
    Part.ArcOfCircle(Part.Circle(Vector(-0.9, 24.56, 0), Vector(0, 0, 1), 0.45), math.radians(43), math.radians(197)),  # 1
    Part.ArcOfCircle(Part.Circle(Vector(-2.09, 24.2, 0), Vector(0, 0, 1), 0.79), math.radians(-77), math.radians(17)),  # 2
    Part.ArcOfCircle(Part.Circle(Vector(-1.8, 23, 0), Vector(0, 0, 1), 0.45), math.radians(103), math.radians(257)),  # 3
    Part.ArcOfCircle(Part.Circle(Vector(-2.09, 21.8, 0), Vector(0, 0, 1), 0.79), math.radians(-17), math.radians(77)),  # 4
    Part.ArcOfCircle(Part.Circle(Vector(-0.9, 21.44, 0), Vector(0, 0, 1), 0.45), math.radians(163), math.radians(317)),  # 5
    Part.ArcOfCircle(Part.Circle(Vector(0, 20.59, 0), Vector(0, 0, 1), 0.79), math.radians(43), math.radians(137)),  # 6
    Part.ArcOfCircle(Part.Circle(Vector(0.9, 21.44, 0), Vector(0, 0, 1), 0.45), math.radians(-137), math.radians(17)),  # 7
    Part.ArcOfCircle(Part.Circle(Vector(2.09, 21.8, 0), Vector(0, 0, 1), 0.79), math.radians(103), math.radians(197)),  # 8
    Part.ArcOfCircle(Part.Circle(Vector(1.8, 23, 0), Vector(0, 0, 1), 0.45), math.radians(-77), math.radians(77)),  # 9
    Part.ArcOfCircle(Part.Circle(Vector(2.09, 24.2, 0), Vector(0, 0, 1), 0.79), math.radians(163), math.radians(257)),  # 10
    Part.ArcOfCircle(Part.Circle(Vector(0.9, 24.56, 0), Vector(0, 0, 1), 0.45), math.radians(-17), math.radians(137)),  # 11
], False)
sketch15.addConstraint([
    Sketcher.Constraint("Tangent", 0, 1, 1, 1),
    Sketcher.Constraint("Tangent", 1, 2, 2, 2),
    Sketcher.Constraint("Tangent", 2, 1, 3, 1),
    Sketcher.Constraint("Tangent", 3, 2, 4, 2),
    Sketcher.Constraint("Tangent", 4, 1, 5, 1),
    Sketcher.Constraint("Tangent", 5, 2, 6, 2),
    Sketcher.Constraint("Tangent", 6, 1, 7, 1),
    Sketcher.Constraint("Tangent", 7, 2, 8, 2),
    Sketcher.Constraint("Tangent", 8, 1, 9, 1),
    Sketcher.Constraint("Tangent", 9, 2, 10, 2),
    Sketcher.Constraint("Tangent", 10, 1, 11, 1),
    Sketcher.Constraint("Tangent", 11, 2, 0, 2),
    Sketcher.Constraint("Equal", 0, 2),
    Sketcher.Constraint("Equal", 1, 3),
    Sketcher.Constraint("Equal", 2, 4),
    Sketcher.Constraint("Equal", 3, 5),
    Sketcher.Constraint("Equal", 4, 6),
    Sketcher.Constraint("Equal", 5, 7),
    Sketcher.Constraint("Equal", 6, 8),
    Sketcher.Constraint("Equal", 7, 9),
    Sketcher.Constraint("Equal", 8, 10),
    Sketcher.Constraint("Equal", 9, 11),
    Sketcher.Constraint("Symmetric", 5, 3, 7, 3, -2),
    Sketcher.Constraint("Symmetric", 3, 3, 9, 3, -2),
    Sketcher.Constraint("Symmetric", 1, 3, 11, 3, -2),
    Sketcher.Constraint("Vertical", 2, 3, 4, 3),
    Sketcher.Constraint("Vertical", 1, 3, 5, 3),
    Sketcher.Constraint("Radius", 1, Q("0.45 mm")),
    Sketcher.Constraint("DistanceY", -1, 1, 3, 3, Q("23 mm")),
    Sketcher.Constraint("DistanceX", 1, 3, -1, 1, Q("0.9 mm")),
    Sketcher.Constraint("DistanceX", 3, 3, -1, 1, Q("1.8 mm")),
    Sketcher.Constraint("Radius", 0, Q("0.7875 mm")),
    Sketcher.Constraint("DistanceY", -1, 1, 2, 3, Q("24.204 mm")),
])
sketch15.setExpression("Constraints[27]", "Params.sketch15_radius")
pocket1 = body.newObject("PartDesign::Pocket", "Pocket")
pocket1.Profile = sketch15
pocket1.setExpression("Length", "Params.pocket1_length")

# Sketch on YZ plane
sketch16 = body.newObject("Sketcher::SketchObject", "Sketch015")
sketch16.AttachmentSupport = (doc.getObject("YZ_Plane"), [""])
sketch16.MapMode = "FlatFace"
sketch16.AttachmentOffset = App.Placement(Vector(0, 0, 11.65), App.Rotation())
sketch16.addGeometry([
    Part.ArcOfCircle(Part.Circle(Vector(0, -20.59, 0), Vector(0, 0, 1), 0.79), math.radians(-137), math.radians(-43)),  # 0
    Part.ArcOfCircle(Part.Circle(Vector(-0.9, -21.44, 0), Vector(0, 0, 1), 0.45), math.radians(43), math.radians(197)),  # 1
    Part.ArcOfCircle(Part.Circle(Vector(-2.09, -21.8, 0), Vector(0, 0, 1), 0.79), math.radians(-77), math.radians(17)),  # 2
    Part.ArcOfCircle(Part.Circle(Vector(-1.8, -23, 0), Vector(0, 0, 1), 0.45), math.radians(103), math.radians(257)),  # 3
    Part.ArcOfCircle(Part.Circle(Vector(-2.09, -24.2, 0), Vector(0, 0, 1), 0.79), math.radians(-17), math.radians(77)),  # 4
    Part.ArcOfCircle(Part.Circle(Vector(-0.9, -24.56, 0), Vector(0, 0, 1), 0.45), math.radians(163), math.radians(317)),  # 5
    Part.ArcOfCircle(Part.Circle(Vector(0, -25.41, 0), Vector(0, 0, 1), 0.79), math.radians(43), math.radians(137)),  # 6
    Part.ArcOfCircle(Part.Circle(Vector(0.9, -24.56, 0), Vector(0, 0, 1), 0.45), math.radians(-137), math.radians(17)),  # 7
    Part.ArcOfCircle(Part.Circle(Vector(2.09, -24.2, 0), Vector(0, 0, 1), 0.79), math.radians(103), math.radians(197)),  # 8
    Part.ArcOfCircle(Part.Circle(Vector(1.8, -23, 0), Vector(0, 0, 1), 0.45), math.radians(-77), math.radians(77)),  # 9
    Part.ArcOfCircle(Part.Circle(Vector(2.09, -21.8, 0), Vector(0, 0, 1), 0.79), math.radians(163), math.radians(257)),  # 10
    Part.ArcOfCircle(Part.Circle(Vector(0.9, -21.44, 0), Vector(0, 0, 1), 0.45), math.radians(-17), math.radians(137)),  # 11
], False)
sketch16.addConstraint([
    Sketcher.Constraint("Tangent", 0, 1, 1, 1),
    Sketcher.Constraint("Tangent", 1, 2, 2, 2),
    Sketcher.Constraint("Tangent", 2, 1, 3, 1),
    Sketcher.Constraint("Tangent", 3, 2, 4, 2),
    Sketcher.Constraint("Tangent", 4, 1, 5, 1),
    Sketcher.Constraint("Tangent", 5, 2, 6, 2),
    Sketcher.Constraint("Tangent", 6, 1, 7, 1),
    Sketcher.Constraint("Tangent", 7, 2, 8, 2),
    Sketcher.Constraint("Tangent", 8, 1, 9, 1),
    Sketcher.Constraint("Tangent", 9, 2, 10, 2),
    Sketcher.Constraint("Tangent", 10, 1, 11, 1),
    Sketcher.Constraint("Tangent", 11, 2, 0, 2),
    Sketcher.Constraint("Equal", 0, 2),
    Sketcher.Constraint("Equal", 1, 3),
    Sketcher.Constraint("Equal", 2, 4),
    Sketcher.Constraint("Equal", 3, 5),
    Sketcher.Constraint("Equal", 4, 6),
    Sketcher.Constraint("Equal", 5, 7),
    Sketcher.Constraint("Equal", 6, 8),
    Sketcher.Constraint("Equal", 7, 9),
    Sketcher.Constraint("Equal", 8, 10),
    Sketcher.Constraint("Equal", 9, 11),
    Sketcher.Constraint("Symmetric", 5, 3, 7, 3, -2),
    Sketcher.Constraint("Symmetric", 3, 3, 9, 3, -2),
    Sketcher.Constraint("Symmetric", 1, 3, 11, 3, -2),
    Sketcher.Constraint("Vertical", 2, 3, 4, 3),
    Sketcher.Constraint("Vertical", 1, 3, 5, 3),
    Sketcher.Constraint("Radius", 1, Q("0.45 mm")),
    Sketcher.Constraint("DistanceY", 3, 3, -1, 1, Q("23 mm")),
    Sketcher.Constraint("DistanceX", 1, 3, -1, 1, Q("0.9 mm")),
    Sketcher.Constraint("DistanceX", 3, 3, -1, 1, Q("1.8 mm")),
    Sketcher.Constraint("Radius", 0, Q("0.7875 mm")),
    Sketcher.Constraint("DistanceY", 2, 3, -1, 1, Q("21.796 mm")),
])
sketch16.setExpression("Constraints[27]", "Params.sketch16_radius")
pocket2 = body.newObject("PartDesign::Pocket", "Pocket001")
pocket2.Profile = sketch16
pocket2.setExpression("Length", "Params.pocket2_length")

# Sketch on XY plane
sketch17 = body.newObject("Sketcher::SketchObject", "Sketch016")
sketch17.AttachmentSupport = (doc.getObject("XY_Plane"), [""])
sketch17.MapMode = "FlatFace"
sketch17.addGeometry([
    Part.LineSegment(Vector(9.87, 0, 0), Vector(12, 0, 0)),  # 0
    Part.LineSegment(Vector(12, 0, 0), Vector(12, 4, 0)),  # 1
    Part.LineSegment(Vector(12, 4, 0), Vector(7.6, 4, 0)),  # 2
    Part.LineSegment(Vector(7.6, 4, 0), Vector(7.6, 3.5, 0)),  # 3
    Part.LineSegment(Vector(7.6, 3.5, 0), Vector(11.2, 3.5, 0)),  # 4
    Part.ArcOfCircle(Part.Circle(Vector(11.2, 3.1, 0), Vector(0, 0, 1), 0.4), math.radians(0), math.radians(90)),  # 5
    Part.LineSegment(Vector(11.6, 3.1, 0), Vector(11.6, 1.73, 0)),  # 6
    Part.LineSegment(Vector(11.6, 1.73, 0), Vector(9.87, 0, 0)),  # 7
], False)
sketch17.addConstraint([
    Sketcher.Constraint("Coincident", 0, 2, 1, 1),
    Sketcher.Constraint("Coincident", 1, 2, 2, 1),
    Sketcher.Constraint("Coincident", 2, 2, 3, 1),
    Sketcher.Constraint("Coincident", 3, 2, 4, 1),
    Sketcher.Constraint("Tangent", 4, 2, 5, 2),
    Sketcher.Constraint("Tangent", 5, 1, 6, 1),
    Sketcher.Constraint("Coincident", 6, 2, 7, 1),
    Sketcher.Constraint("Coincident", 7, 2, 0, 1),
    Sketcher.Constraint("Horizontal", 0),
    Sketcher.Constraint("Vertical", 1),
    Sketcher.Constraint("Horizontal", 2),
    Sketcher.Constraint("Vertical", 3),
    Sketcher.Constraint("Horizontal", 4),
    Sketcher.Constraint("Vertical", 6),
    Sketcher.Constraint("PointOnObject", 0, 2, -1),
    Sketcher.Constraint("Radius", 5, Q("0.4 mm")),
    Sketcher.Constraint("DistanceY", 1, 1, 1, 2, Q("4 mm")),
    Sketcher.Constraint("Angle", 7, Q("-135 deg")),
    Sketcher.Constraint("DistanceX", 2, 2, 2, 1, Q("4.4 mm")),
    Sketcher.Constraint("DistanceX", 4, 1, 4, 2, Q("3.6 mm")),
    Sketcher.Constraint("DistanceY", 3, 2, 3, 1, Q("0.5 mm")),
    Sketcher.Constraint("DistanceX", -1, 1, 0, 2, Q("12 mm")),
    Sketcher.Constraint("DistanceX", 0, 1, 0, 2, Q("2.132 mm")),
])
sketch17.setExpression("Constraints[15]", "Params.sketch17_radius")
sketch17.setExpression("Constraints[16]", "Params.sketch17_height")
sketch17.setExpression("Constraints[18]", "Params.sketch17_width")
sketch17.setExpression("Constraints[19]", "Params.sketch17_width2")
sketch17.setExpression("Constraints[20]", "Params.sketch17_height2")
groove7 = body.newObject("PartDesign::Groove", "Groove006")
groove7.Profile = sketch17
groove7.ReferenceAxis = (sketch17, ["H_Axis"])
groove7.setExpression("Angle", "Params.groove7_angle")

# Sketch on YZ plane
sketch18 = body.newObject("Sketcher::SketchObject", "Sketch017")
sketch18.AttachmentSupport = (doc.getObject("YZ_Plane"), [""])
sketch18.MapMode = "FlatFace"
sketch18.AttachmentOffset = App.Placement(Vector(0, 0, 11.6), App.Rotation())
add_polygon(sketch18, [(-1.5, 0.9), (-1.5, -0.9), (0, -1.7), (1.5, -0.9), (1.5, 0.9), (0, 1.7)])  # lines 0-5
sketch18.addConstraint([
    Sketcher.Constraint("Vertical", 0),
    Sketcher.Constraint("Vertical", 3),
    Sketcher.Constraint("Symmetric", 0, 2, 3, 2, -1, 1),
    Sketcher.Constraint("Symmetric", 1, 2, 4, 2, -1, 1),
    Sketcher.Constraint("PointOnObject", 1, 2, -2),
    Sketcher.Constraint("Parallel", 2, 5),
    Sketcher.Constraint("Horizontal", 0, 2, 2, 2),
    Sketcher.Constraint("DistanceX", 0, 2, 2, 2, Q("3 mm")),
    Sketcher.Constraint("DistanceY", 0, 2, 0, 1, Q("1.732 mm")),
    Sketcher.Constraint("Distance", 1, Q("1.732 mm")),
])
pocket3 = body.newObject("PartDesign::Pocket", "Pocket002")
pocket3.Profile = sketch18
pocket3.setExpression("Length", "Params.pocket3_length")

doc.recompute()
